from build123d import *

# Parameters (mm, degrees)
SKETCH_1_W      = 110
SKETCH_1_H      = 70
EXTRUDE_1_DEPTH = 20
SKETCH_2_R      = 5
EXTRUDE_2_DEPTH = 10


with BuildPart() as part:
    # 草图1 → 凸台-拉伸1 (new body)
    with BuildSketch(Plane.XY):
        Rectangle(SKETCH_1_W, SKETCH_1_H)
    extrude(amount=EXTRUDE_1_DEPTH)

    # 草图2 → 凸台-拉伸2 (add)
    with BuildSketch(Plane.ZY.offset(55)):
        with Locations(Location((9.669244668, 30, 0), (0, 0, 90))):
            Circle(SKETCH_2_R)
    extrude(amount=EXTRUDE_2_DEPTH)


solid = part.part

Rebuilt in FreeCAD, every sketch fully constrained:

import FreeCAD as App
import Part
import Sketcher

V = App.Vector

doc = App.newDocument("Part")
params = doc.addObject("Spreadsheet::Sheet", "Params")
for row, (alias, value) in enumerate([
    ("sketch1_width", "110 mm"),
    ("sketch1_height", "70 mm"),
    ("pad1_length", "20 mm"),
    ("sketch2_diameter", "10 mm"),
    ("pad2_length", "10 mm"),
], start=1):
    params.set(f"A{row}", alias)
    params.set(f"B{row}", "=" + value)
    params.setAlias(f"B{row}", alias)

body = doc.addObject("PartDesign::Body", "Body")

# Sketch on XY plane
sketch1 = body.newObject("Sketcher::SketchObject", "Sketch")
sketch1.AttachmentSupport = (doc.getObject("XY_Plane"), [""])
sketch1.MapMode = "FlatFace"
sketch1.addGeometry(Part.LineSegment(V(-55, 35, 0), V(-55, -35, 0)), False)
sketch1.addGeometry(Part.LineSegment(V(-55, -35, 0), V(55, -35, 0)), False)
sketch1.addGeometry(Part.LineSegment(V(55, -35, 0), V(55, 35, 0)), False)
sketch1.addGeometry(Part.LineSegment(V(55, 35, 0), V(-55, 35, 0)), False)
sketch1.addConstraint(Sketcher.Constraint("Coincident", 0, 2, 1, 1))
sketch1.addConstraint(Sketcher.Constraint("Coincident", 1, 2, 2, 1))
sketch1.addConstraint(Sketcher.Constraint("Coincident", 2, 2, 3, 1))
sketch1.addConstraint(Sketcher.Constraint("Coincident", 3, 2, 0, 1))
sketch1.addConstraint(Sketcher.Constraint("Vertical", 0))
sketch1.addConstraint(Sketcher.Constraint("Horizontal", 1))
sketch1.addConstraint(Sketcher.Constraint("Vertical", 2))
sketch1.addConstraint(Sketcher.Constraint("Horizontal", 3))
sketch1.addConstraint(Sketcher.Constraint("Symmetric", 0, 2, 2, 2, -1, 1))
sketch1.addConstraint(Sketcher.Constraint("DistanceX", 1, 1, 1, 2, 110.0))
sketch1.addConstraint(Sketcher.Constraint("DistanceY", 0, 2, 0, 1, 70.0))
sketch1.setExpression("Constraints[9]", "Params.sketch1_width")
sketch1.setExpression("Constraints[10]", "Params.sketch1_height")
pad1 = body.newObject("PartDesign::Pad", "Pad")
pad1.Profile = sketch1
pad1.setExpression("Length", "Params.pad1_length")

# Sketch on YZ plane
sketch2 = body.newObject("Sketcher::SketchObject", "Sketch001")
sketch2.AttachmentSupport = (doc.getObject("YZ_Plane"), [""])
sketch2.MapMode = "FlatFace"
sketch2.AttachmentOffset = App.Placement(V(0, 0, -55), App.Rotation())
sketch2.addGeometry(Part.Circle(V(30, 9.669245, 0), V(0, 0, 1), 5), False)
sketch2.addConstraint(Sketcher.Constraint("Diameter", 0, 10.0))
sketch2.addConstraint(Sketcher.Constraint("DistanceX", -1, 1, 0, 3, 30.0))
sketch2.addConstraint(Sketcher.Constraint("DistanceY", -1, 1, 0, 3, 9.669245))
sketch2.setExpression("Constraints[0]", "Params.sketch2_diameter")
pad2 = body.newObject("PartDesign::Pad", "Pad001")
pad2.Profile = sketch2
pad2.setExpression("Length", "Params.pad2_length")
pad2.Reversed = True

doc.recompute()
